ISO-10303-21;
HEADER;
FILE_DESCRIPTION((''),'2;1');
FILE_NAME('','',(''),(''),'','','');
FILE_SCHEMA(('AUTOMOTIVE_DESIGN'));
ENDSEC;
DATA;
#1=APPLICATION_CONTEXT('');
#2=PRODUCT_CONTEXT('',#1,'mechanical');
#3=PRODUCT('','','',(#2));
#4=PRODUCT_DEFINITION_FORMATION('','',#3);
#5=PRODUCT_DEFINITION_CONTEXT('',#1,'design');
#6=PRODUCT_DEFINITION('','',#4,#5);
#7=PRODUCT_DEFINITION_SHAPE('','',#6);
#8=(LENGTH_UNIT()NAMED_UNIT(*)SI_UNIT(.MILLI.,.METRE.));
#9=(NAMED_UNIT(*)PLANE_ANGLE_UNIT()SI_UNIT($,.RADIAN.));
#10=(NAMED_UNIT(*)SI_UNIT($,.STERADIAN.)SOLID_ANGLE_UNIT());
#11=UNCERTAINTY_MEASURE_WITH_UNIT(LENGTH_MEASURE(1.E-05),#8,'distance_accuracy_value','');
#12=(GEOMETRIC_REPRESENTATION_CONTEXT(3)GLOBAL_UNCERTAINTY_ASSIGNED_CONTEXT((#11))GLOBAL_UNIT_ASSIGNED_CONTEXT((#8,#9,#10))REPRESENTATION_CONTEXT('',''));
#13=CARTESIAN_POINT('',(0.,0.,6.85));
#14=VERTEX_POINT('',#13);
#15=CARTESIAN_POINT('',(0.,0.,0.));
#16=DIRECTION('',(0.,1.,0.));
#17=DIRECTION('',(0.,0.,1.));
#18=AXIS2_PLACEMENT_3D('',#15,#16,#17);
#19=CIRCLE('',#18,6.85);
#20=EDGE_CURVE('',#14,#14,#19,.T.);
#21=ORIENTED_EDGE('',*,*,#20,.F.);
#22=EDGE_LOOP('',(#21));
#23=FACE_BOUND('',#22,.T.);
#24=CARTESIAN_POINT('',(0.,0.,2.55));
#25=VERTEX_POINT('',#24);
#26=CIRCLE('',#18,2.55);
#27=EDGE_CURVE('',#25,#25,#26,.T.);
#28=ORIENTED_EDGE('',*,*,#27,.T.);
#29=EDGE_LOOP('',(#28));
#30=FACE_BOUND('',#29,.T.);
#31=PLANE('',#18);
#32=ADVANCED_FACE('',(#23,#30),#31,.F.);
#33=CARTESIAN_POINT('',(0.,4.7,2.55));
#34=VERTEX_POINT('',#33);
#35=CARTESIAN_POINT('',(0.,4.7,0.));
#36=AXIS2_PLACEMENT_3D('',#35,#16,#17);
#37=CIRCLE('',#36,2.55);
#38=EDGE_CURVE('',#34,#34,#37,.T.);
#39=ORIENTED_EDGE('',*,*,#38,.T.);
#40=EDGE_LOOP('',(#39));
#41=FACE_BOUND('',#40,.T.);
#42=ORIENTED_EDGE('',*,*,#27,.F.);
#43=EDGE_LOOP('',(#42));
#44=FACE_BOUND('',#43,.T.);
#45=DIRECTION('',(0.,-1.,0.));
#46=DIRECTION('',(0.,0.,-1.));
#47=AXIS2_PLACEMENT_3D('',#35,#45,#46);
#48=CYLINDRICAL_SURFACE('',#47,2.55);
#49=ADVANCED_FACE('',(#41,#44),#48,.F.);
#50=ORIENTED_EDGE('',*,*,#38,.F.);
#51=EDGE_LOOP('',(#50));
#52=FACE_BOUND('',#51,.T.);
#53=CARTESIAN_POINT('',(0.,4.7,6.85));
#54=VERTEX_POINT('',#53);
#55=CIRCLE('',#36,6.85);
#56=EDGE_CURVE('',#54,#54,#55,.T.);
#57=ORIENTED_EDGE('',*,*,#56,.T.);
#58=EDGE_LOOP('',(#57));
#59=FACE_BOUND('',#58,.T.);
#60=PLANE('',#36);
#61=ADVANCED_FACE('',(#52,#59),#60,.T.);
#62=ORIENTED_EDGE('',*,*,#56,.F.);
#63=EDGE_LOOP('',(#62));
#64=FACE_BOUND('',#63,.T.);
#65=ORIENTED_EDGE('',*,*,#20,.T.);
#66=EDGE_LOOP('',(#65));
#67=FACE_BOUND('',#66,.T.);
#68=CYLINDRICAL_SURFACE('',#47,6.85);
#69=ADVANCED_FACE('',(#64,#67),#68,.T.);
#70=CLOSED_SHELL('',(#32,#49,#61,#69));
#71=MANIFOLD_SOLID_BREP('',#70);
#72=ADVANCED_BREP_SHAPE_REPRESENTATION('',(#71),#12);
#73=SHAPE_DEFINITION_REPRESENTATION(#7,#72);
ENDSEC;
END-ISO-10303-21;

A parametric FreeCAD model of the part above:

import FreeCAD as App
import Part
import Sketcher
from FreeCAD import Vector
Q = App.Units.Quantity

doc = App.newDocument("Part")
params = doc.addObject("Spreadsheet::Sheet", "Params")
for row, (alias, value) in enumerate([
    ("sketch1_diameter", "13.7 mm"),
    ("sketch1_diameter2", "5.1 mm"),
    ("pad1_length", "4.7 mm"),
], start=1):
    params.set(f"A{row}", alias)
    params.set(f"B{row}", "=" + value)
    params.setAlias(f"B{row}", alias)

body = doc.addObject("PartDesign::Body", "Body")

# Sketch on XZ plane
sketch1 = doc.addObject("Sketcher::SketchObject", "Sketch")
body.addObject(sketch1)
sketch1.AttachmentSupport = (doc.XZ_Plane, [""])
sketch1.MapMode = "FlatFace"
sketch1.addGeometry(Part.Circle(Vector(0, 0, 0), Vector(0, 0, 1), 6.85), False)
sketch1.addGeometry(Part.Circle(Vector(0, 0, 0), Vector(0, 0, 1), 2.55), False)
sketch1.addConstraint(Sketcher.Constraint("Coincident", 0, 3, -1, 1))
sketch1.addConstraint(Sketcher.Constraint("Coincident", 1, 3, -1, 1))
sketch1.addConstraint(Sketcher.Constraint("Diameter", 0, Q("13.7 mm")))
sketch1.addConstraint(Sketcher.Constraint("Diameter", 1, Q("5.1 mm")))
sketch1.setExpression("Constraints[2]", "Params.sketch1_diameter")
sketch1.setExpression("Constraints[3]", "Params.sketch1_diameter2")
pad1 = doc.addObject("PartDesign::Pad", "Pad")
body.addObject(pad1)
pad1.Profile = sketch1
pad1.setExpression("Length", "Params.pad1_length")
pad1.Reversed = True

doc.recompute()
